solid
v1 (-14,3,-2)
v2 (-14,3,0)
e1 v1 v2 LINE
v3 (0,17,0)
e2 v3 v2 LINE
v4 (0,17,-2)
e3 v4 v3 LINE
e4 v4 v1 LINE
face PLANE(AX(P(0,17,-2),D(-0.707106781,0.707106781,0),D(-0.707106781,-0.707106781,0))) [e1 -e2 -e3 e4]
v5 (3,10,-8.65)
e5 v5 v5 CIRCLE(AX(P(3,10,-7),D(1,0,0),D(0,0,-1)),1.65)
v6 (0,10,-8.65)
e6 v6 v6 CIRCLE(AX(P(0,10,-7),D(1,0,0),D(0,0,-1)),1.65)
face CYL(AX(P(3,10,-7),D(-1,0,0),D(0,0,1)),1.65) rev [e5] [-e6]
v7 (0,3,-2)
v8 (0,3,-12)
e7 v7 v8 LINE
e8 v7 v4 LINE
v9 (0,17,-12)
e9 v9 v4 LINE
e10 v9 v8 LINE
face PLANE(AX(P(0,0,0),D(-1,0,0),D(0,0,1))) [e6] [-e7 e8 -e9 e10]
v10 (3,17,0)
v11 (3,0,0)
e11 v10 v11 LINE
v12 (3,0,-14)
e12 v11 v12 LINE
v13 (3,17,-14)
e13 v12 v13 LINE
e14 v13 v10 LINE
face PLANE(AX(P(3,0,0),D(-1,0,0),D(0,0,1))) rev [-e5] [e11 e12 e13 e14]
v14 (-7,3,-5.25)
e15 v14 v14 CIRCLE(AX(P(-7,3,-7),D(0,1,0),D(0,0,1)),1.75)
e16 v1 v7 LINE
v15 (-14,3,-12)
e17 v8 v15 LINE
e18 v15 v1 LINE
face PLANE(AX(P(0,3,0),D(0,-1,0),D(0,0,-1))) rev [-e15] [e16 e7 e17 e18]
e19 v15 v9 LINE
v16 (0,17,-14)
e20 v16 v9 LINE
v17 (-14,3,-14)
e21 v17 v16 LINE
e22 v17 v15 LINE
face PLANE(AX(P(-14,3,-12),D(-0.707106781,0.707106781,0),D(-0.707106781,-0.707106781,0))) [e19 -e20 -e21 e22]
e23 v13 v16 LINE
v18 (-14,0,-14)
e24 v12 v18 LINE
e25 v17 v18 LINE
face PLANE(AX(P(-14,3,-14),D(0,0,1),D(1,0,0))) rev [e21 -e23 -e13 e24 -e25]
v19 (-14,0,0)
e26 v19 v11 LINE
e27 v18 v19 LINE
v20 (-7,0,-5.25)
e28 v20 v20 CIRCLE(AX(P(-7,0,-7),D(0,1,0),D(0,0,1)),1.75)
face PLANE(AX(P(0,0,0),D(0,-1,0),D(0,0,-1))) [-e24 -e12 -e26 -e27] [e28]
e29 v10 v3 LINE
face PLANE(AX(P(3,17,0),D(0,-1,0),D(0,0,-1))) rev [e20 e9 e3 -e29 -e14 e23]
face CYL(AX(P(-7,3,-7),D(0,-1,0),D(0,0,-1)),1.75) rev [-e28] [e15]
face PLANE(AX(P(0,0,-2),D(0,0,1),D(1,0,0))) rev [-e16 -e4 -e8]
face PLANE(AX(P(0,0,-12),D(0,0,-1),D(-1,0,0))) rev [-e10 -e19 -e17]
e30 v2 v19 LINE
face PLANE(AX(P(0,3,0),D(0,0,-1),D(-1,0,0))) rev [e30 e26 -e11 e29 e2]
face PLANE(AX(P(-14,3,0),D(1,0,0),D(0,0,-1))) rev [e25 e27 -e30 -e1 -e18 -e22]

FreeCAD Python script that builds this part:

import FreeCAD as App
import Part
import Sketcher
Q = App.Units.Quantity


def add_polygon(sketch, points):
    """Adds a closed chain of lines whose ends are joined by coincident constraints."""
    first, n = sketch.GeometryCount, len(points)
    for a, b in zip(points, points[1:] + points[:1]):
        sketch.addGeometry(Part.LineSegment(App.Vector(*a, 0), App.Vector(*b, 0)), False)
    for i in range(n):
        sketch.addConstraint(Sketcher.Constraint("Coincident", first + i, 2, first + (i + 1) % n, 1))

doc = App.newDocument("Part")
params = doc.addObject("Spreadsheet::Sheet", "Params")
for row, (alias, value) in enumerate([
    ("sketch1_diameter", "3.5 mm"),
    ("sketch1_width", "14 mm"),
    ("pad1_length", "3 mm"),
    ("sketch2_diameter", "3.3 mm"),
    ("sketch2_width", "17 mm"),
    ("sketch2_height", "14 mm"),
    ("pad2_length", "3 mm"),
    ("sketch3_width", "14 mm"),
    ("pad3_length", "2 mm"),
    ("sketch4_width", "14 mm"),
    ("pad4_length", "2 mm"),
], start=1):
    params.set(f"A{row}", alias)
    params.set(f"B{row}", "=" + value)
    params.setAlias(f"B{row}", alias)

body = doc.addObject("PartDesign::Body", "Body")

# Sketch on XZ plane
sketch1 = body.newObject("Sketcher::SketchObject", "Sketch")
sketch1.AttachmentSupport = (doc.getObject("XZ_Plane"), [""])
sketch1.MapMode = "FlatFace"
add_polygon(sketch1, [(-14, -14), (-14, 0), (0, 0), (0, -14)])  # lines 0-3
sketch1.addGeometry(Part.Circle(App.Vector(-7, -7, 0), App.Vector(0, 0, 1), 1.8), False)  # 4
sketch1.addConstraint([
    Sketcher.Constraint("Vertical", 0),
    Sketcher.Constraint("Horizontal", 1),
    Sketcher.Constraint("Vertical", 2),
    Sketcher.Constraint("Horizontal", 3),
    Sketcher.Constraint("Coincident", 1, 2, -1, 1),
    Sketcher.Constraint("Equal", 3, 0),
    Sketcher.Constraint("Diameter", 4, Q("3.5 mm")),
    Sketcher.Constraint("DistanceX", 1, 1, 1, 2, Q("14 mm")),
    Sketcher.Constraint("DistanceX", 4, 3, -1, 1, Q("7 mm")),
    Sketcher.Constraint("DistanceY", 4, 3, -1, 1, Q("7 mm")),
])
sketch1.setExpression("Constraints[10]", "Params.sketch1_diameter")
sketch1.setExpression("Constraints[11]", "Params.sketch1_width")
pad1 = body.newObject("PartDesign::Pad", "Pad")
pad1.Profile = sketch1
pad1.setExpression("Length", "Params.pad1_length")
pad1.Reversed = True

# Sketch on YZ plane
sketch2 = body.newObject("Sketcher::SketchObject", "Sketch001")
sketch2.AttachmentSupport = (doc.getObject("YZ_Plane"), [""])
sketch2.MapMode = "FlatFace"
add_polygon(sketch2, [(17, 0), (0, 0), (0, -14), (17, -14)])  # lines 0-3
sketch2.addGeometry(Part.Circle(App.Vector(10, -7, 0), App.Vector(0, 0, 1), 1.6), False)  # 4
sketch2.addConstraint([
    Sketcher.Constraint("Horizontal", 0),
    Sketcher.Constraint("Vertical", 1),
    Sketcher.Constraint("Horizontal", 2),
    Sketcher.Constraint("Vertical", 3),
    Sketcher.Constraint("Coincident", 0, 2, -1, 1),
    Sketcher.Constraint("Diameter", 4, Q("3.3 mm")),
    Sketcher.Constraint("DistanceX", 0, 2, 0, 1, Q("17 mm")),
    Sketcher.Constraint("DistanceY", 1, 2, 1, 1, Q("14 mm")),
    Sketcher.Constraint("DistanceX", -1, 1, 4, 3, Q("10 mm")),
    Sketcher.Constraint("DistanceY", 4, 3, -1, 1, Q("7 mm")),
])
sketch2.setExpression("Constraints[9]", "Params.sketch2_diameter")
sketch2.setExpression("Constraints[10]", "Params.sketch2_width")
sketch2.setExpression("Constraints[11]", "Params.sketch2_height")
pad2 = body.newObject("PartDesign::Pad", "Pad001")
pad2.Profile = sketch2
pad2.setExpression("Length", "Params.pad2_length")

# Sketch on XY plane
sketch3 = body.newObject("Sketcher::SketchObject", "Sketch002")
sketch3.AttachmentSupport = (doc.getObject("XY_Plane"), [""])
sketch3.MapMode = "FlatFace"
add_polygon(sketch3, [(0, 3), (0, 17), (-14, 3)])  # lines 0-2
sketch3.addConstraint([
    Sketcher.Constraint("Vertical", 0),
    Sketcher.Constraint("Horizontal", 2),
    Sketcher.Constraint("PointOnObject", 0, 2, -2),
    Sketcher.Constraint("Equal", 2, 0),
    Sketcher.Constraint("DistanceX", 2, 1, 2, 2, Q("14 mm")),
    Sketcher.Constraint("DistanceY", -1, 1, 0, 2, Q("17 mm")),
])
sketch3.setExpression("Constraints[7]", "Params.sketch3_width")
pad3 = body.newObject("PartDesign::Pad", "Pad002")
pad3.Profile = sketch3
pad3.setExpression("Length", "Params.pad3_length")
pad3.Reversed = True

# Sketch on XY plane
sketch4 = body.newObject("Sketcher::SketchObject", "Sketch003")
sketch4.AttachmentSupport = (doc.getObject("XY_Plane"), [""])
sketch4.MapMode = "FlatFace"
sketch4.AttachmentOffset = App.Placement(App.Vector(0, 0, -14), App.Rotation())
add_polygon(sketch4, [(0, 3), (-14, 3), (0, 17)])  # lines 0-2
sketch4.addConstraint([
    Sketcher.Constraint("Horizontal", 0),
    Sketcher.Constraint("Vertical", 2),
    Sketcher.Constraint("PointOnObject", 1, 2, -2),
    Sketcher.Constraint("Equal", 0, 2),
    Sketcher.Constraint("DistanceX", 0, 2, 0, 1, Q("14 mm")),
    Sketcher.Constraint("DistanceY", -1, 1, 0, 2, Q("3 mm")),
])
sketch4.setExpression("Constraints[7]", "Params.sketch4_width")
pad4 = body.newObject("PartDesign::Pad", "Pad003")
pad4.Profile = sketch4
pad4.setExpression("Length", "Params.pad4_length")

doc.recompute()
